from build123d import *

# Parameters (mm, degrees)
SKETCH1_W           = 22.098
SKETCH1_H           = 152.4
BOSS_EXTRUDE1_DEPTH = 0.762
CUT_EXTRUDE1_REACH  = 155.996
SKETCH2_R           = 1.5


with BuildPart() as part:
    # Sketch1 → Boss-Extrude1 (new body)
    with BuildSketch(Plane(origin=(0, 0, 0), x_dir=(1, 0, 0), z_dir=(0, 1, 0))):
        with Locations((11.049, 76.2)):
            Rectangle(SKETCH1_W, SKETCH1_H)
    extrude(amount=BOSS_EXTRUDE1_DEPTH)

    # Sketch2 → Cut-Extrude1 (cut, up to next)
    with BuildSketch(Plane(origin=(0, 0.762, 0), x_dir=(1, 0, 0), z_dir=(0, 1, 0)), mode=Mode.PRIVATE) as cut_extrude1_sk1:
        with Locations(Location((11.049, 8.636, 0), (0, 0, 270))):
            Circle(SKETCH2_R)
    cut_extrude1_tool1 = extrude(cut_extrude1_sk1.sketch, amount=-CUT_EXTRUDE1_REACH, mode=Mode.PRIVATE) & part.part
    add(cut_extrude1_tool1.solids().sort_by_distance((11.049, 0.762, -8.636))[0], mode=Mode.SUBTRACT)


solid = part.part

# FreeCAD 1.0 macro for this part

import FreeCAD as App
import Part
import Sketcher

V = App.Vector
Q = App.Units.Quantity

doc = App.newDocument("Part")
body = doc.addObject("PartDesign::Body", "Body")

sketch1 = body.newObject("Sketcher::SketchObject", "Sketch")
sketch1.AttachmentSupport = (doc.getObject("XZ_Plane"), [""])
sketch1.MapMode = "FlatFace"
sketch1.addGeometry(Part.LineSegment(V(0, -152, 0), V(0, 0, 0)), False)
sketch1.addGeometry(Part.LineSegment(V(0, 0, 0), V(22, 0, 0)), False)
sketch1.addGeometry(Part.LineSegment(V(22, 0, 0), V(22, -152, 0)), False)
sketch1.addGeometry(Part.LineSegment(V(22, -152, 0), V(0, -152, 0)), False)
sketch1.addConstraint(Sketcher.Constraint("Coincident", 0, 2, 1, 1))
sketch1.addConstraint(Sketcher.Constraint("Coincident", 1, 2, 2, 1))
sketch1.addConstraint(Sketcher.Constraint("Coincident", 2, 2, 3, 1))
sketch1.addConstraint(Sketcher.Constraint("Coincident", 3, 2, 0, 1))
sketch1.addConstraint(Sketcher.Constraint("Vertical", 0))
sketch1.addConstraint(Sketcher.Constraint("Horizontal", 1))
sketch1.addConstraint(Sketcher.Constraint("Vertical", 2))
sketch1.addConstraint(Sketcher.Constraint("Horizontal", 3))
sketch1.addConstraint(Sketcher.Constraint("Coincident", 0, 2, -1, 1))
sketch1.addConstraint(Sketcher.Constraint("DistanceY", 0, 1, 0, 2, Q("6 in")))
sketch1.addConstraint(Sketcher.Constraint("DistanceX", 1, 1, 1, 2, Q("0.87 in")))
pad1 = body.newObject("PartDesign::Pad", "Pad")
pad1.Profile = sketch1
pad1.Length = Q("0.03 in")
pad1.Reversed = True

sketch2 = body.newObject("Sketcher::SketchObject", "Sketch001")
sketch2.AttachmentSupport = (doc.getObject("XZ_Plane"), [""])
sketch2.MapMode = "FlatFace"
sketch2.AttachmentOffset = App.Placement(V(0, 0, -0.03 * 25.4), App.Rotation())
sketch2.addGeometry(Part.Circle(V(11, -8.6, 0), V(0, 0, 1), 1.5), False)
sketch2.addConstraint(Sketcher.Constraint("Diameter", 0, 3.0))
sketch2.addConstraint(Sketcher.Constraint("DistanceY", 0, 3, -1, 1, Q("0.34 in")))
sketch2.addConstraint(Sketcher.Constraint("DistanceX", -1, 1, 0, 3, Q("0.435 in")))
pocket1 = body.newObject("PartDesign::Pocket", "Pocket")
pocket1.Profile = sketch2
pocket1.Type = "UpToFirst"
pocket1.Reversed = True

doc.recompute()
